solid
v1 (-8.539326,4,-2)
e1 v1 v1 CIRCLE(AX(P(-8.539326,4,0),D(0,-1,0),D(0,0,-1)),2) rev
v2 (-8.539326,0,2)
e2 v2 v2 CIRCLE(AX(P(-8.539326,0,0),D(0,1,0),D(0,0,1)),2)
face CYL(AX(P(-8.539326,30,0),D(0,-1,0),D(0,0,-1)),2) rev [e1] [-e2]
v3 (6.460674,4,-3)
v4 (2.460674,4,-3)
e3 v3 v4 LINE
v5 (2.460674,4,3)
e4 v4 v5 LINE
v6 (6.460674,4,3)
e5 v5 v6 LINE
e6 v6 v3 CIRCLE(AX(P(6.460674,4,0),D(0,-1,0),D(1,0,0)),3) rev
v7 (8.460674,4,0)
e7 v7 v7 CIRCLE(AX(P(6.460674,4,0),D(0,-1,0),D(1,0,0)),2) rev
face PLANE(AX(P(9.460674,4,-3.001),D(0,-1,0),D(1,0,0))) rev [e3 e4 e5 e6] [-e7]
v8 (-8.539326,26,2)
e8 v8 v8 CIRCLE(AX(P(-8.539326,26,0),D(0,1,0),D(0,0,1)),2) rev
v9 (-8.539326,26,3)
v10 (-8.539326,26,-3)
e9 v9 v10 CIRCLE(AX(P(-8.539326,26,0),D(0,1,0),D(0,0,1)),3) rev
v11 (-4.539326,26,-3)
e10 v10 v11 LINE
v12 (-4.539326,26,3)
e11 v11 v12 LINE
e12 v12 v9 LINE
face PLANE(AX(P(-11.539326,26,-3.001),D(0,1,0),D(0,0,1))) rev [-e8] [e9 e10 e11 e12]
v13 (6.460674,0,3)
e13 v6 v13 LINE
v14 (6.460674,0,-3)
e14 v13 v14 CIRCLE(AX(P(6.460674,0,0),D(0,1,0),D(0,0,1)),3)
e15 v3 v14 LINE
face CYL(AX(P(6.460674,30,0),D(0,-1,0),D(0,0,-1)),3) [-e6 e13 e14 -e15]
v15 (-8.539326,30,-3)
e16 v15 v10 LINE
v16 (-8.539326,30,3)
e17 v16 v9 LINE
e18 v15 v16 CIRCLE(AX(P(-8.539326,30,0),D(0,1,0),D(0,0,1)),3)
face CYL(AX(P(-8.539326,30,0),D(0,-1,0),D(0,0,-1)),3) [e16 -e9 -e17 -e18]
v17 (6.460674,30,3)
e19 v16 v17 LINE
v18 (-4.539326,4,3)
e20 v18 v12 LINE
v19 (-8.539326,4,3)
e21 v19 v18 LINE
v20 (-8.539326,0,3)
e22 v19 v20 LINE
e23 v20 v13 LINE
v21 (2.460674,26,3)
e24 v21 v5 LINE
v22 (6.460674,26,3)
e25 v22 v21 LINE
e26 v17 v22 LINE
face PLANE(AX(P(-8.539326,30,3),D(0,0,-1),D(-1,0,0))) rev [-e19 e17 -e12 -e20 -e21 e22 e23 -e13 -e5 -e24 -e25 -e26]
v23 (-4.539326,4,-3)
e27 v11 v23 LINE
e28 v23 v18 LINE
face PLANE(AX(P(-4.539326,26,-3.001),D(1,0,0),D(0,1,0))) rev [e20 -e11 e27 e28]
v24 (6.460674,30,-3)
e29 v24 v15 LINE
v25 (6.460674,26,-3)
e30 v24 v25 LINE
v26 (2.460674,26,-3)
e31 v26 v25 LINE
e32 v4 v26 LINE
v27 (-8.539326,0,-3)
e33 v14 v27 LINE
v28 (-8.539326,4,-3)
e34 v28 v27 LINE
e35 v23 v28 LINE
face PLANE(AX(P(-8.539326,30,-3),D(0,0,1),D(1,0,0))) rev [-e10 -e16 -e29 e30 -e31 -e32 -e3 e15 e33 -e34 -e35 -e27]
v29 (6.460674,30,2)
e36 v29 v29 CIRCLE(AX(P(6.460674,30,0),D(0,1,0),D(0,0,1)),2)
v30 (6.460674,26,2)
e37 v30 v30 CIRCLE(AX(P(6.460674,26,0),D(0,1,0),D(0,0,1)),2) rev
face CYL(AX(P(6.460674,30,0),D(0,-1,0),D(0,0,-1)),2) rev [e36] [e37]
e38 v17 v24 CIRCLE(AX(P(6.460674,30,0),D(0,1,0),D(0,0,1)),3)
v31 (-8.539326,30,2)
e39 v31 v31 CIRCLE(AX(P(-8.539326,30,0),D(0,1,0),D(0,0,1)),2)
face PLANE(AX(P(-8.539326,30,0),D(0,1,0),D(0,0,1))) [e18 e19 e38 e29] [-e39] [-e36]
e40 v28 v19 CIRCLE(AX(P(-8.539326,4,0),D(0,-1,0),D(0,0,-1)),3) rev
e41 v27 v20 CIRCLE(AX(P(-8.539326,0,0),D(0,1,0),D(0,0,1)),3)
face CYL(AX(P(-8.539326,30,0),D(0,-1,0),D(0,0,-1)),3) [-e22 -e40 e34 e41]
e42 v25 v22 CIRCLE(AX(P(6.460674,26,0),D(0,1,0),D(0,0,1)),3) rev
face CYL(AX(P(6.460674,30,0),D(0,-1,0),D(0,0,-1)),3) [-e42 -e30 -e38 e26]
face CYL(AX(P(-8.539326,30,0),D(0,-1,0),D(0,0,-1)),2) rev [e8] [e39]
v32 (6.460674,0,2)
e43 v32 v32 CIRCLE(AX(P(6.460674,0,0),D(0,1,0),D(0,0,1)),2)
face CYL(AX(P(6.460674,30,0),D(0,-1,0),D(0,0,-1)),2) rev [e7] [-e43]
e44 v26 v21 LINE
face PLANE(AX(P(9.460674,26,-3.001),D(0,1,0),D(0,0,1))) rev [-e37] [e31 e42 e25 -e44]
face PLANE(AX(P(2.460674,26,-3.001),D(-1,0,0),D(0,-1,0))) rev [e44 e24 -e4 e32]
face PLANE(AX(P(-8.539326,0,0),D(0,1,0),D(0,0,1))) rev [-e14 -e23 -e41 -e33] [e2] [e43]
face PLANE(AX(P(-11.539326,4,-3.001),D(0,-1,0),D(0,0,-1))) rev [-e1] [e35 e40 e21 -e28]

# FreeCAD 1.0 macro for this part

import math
import FreeCAD as App
import Part
import Sketcher
Q = App.Units.Quantity


def add_polygon(sketch, points):
    """Adds a closed chain of lines whose ends are joined by coincident constraints."""
    first, n = sketch.GeometryCount, len(points)
    for a, b in zip(points, points[1:] + points[:1]):
        sketch.addGeometry(Part.LineSegment(App.Vector(*a, 0), App.Vector(*b, 0)), False)
    for i in range(n):
        sketch.addConstraint(Sketcher.Constraint("Coincident", first + i, 2, first + (i + 1) % n, 1))

doc = App.newDocument("Part")
body = doc.addObject("PartDesign::Body", "Body")

# Sketch on XZ plane
sketch1 = body.newObject("Sketcher::SketchObject", "Sketch")
sketch1.AttachmentSupport = (doc.getObject("XZ_Plane"), [""])
sketch1.MapMode = "FlatFace"
sketch1.addGeometry(Part.LineSegment(App.Vector(6.5, -3, 0), App.Vector(-8.5, -3, 0)), False)
sketch1.addGeometry(Part.ArcOfCircle(Part.Circle(App.Vector(-8.5, 0, 0), App.Vector(0, 0, 1), 3), math.radians(90), math.radians(270)), False)
sketch1.addGeometry(Part.LineSegment(App.Vector(-8.5, 3, 0), App.Vector(6.5, 3, 0)), False)
sketch1.addGeometry(Part.ArcOfCircle(Part.Circle(App.Vector(6.5, 0, 0), App.Vector(0, 0, 1), 3), math.radians(-90), math.radians(90)), False)
sketch1.addGeometry(Part.Circle(App.Vector(6.5, 0, 0), App.Vector(0, 0, 1), 2), False)
sketch1.addGeometry(Part.Circle(App.Vector(-8.5, 0, 0), App.Vector(0, 0, 1), 2), False)
sketch1.addConstraint(Sketcher.Constraint("Tangent", 0, 2, 1, 2))
sketch1.addConstraint(Sketcher.Constraint("Tangent", 1, 1, 2, 1))
sketch1.addConstraint(Sketcher.Constraint("Tangent", 2, 2, 3, 2))
sketch1.addConstraint(Sketcher.Constraint("Tangent", 3, 1, 0, 1))
sketch1.addConstraint(Sketcher.Constraint("Horizontal", 0))
sketch1.addConstraint(Sketcher.Constraint("Horizontal", 2))
sketch1.addConstraint(Sketcher.Constraint("Coincident", 4, 3, 3, 3))
sketch1.addConstraint(Sketcher.Constraint("Coincident", 5, 3, 1, 3))
sketch1.addConstraint(Sketcher.Constraint("Equal", 4, 5))
sketch1.addConstraint(Sketcher.Constraint("PointOnObject", 1, 3, -1))
sketch1.addConstraint(Sketcher.Constraint("Diameter", 4, Q("4 mm")))
sketch1.addConstraint(Sketcher.Constraint("Radius", 1, Q("3 mm")))
sketch1.addConstraint(Sketcher.Constraint("DistanceX", 0, 2, 0, 1, Q("15 mm")))
sketch1.addConstraint(Sketcher.Constraint("DistanceX", 1, 3, -1, 1, Q("8.539326 mm")))
pad1 = body.newObject("PartDesign::Pad", "Pad")
pad1.Profile = sketch1
pad1.Length = 30
pad1.Reversed = True

# Sketch on XY plane
sketch2 = body.newObject("Sketcher::SketchObject", "Sketch001")
sketch2.AttachmentSupport = (doc.getObject("XY_Plane"), [""])
sketch2.MapMode = "FlatFace"
sketch2.AttachmentOffset = App.Placement(App.Vector(0, 0, 3), App.Rotation())
add_polygon(sketch2, [(2, 26), (2, 4), (9, 4), (9, 26)])  # lines 0-3
sketch2.addConstraint(Sketcher.Constraint("Vertical", 0))
sketch2.addConstraint(Sketcher.Constraint("Horizontal", 1))
sketch2.addConstraint(Sketcher.Constraint("Vertical", 2))
sketch2.addConstraint(Sketcher.Constraint("Horizontal", 3))
sketch2.addConstraint(Sketcher.Constraint("DistanceX", 1, 1, 1, 2, Q("7 mm")))
sketch2.addConstraint(Sketcher.Constraint("DistanceY", 0, 2, 0, 1, Q("22 mm")))
sketch2.addConstraint(Sketcher.Constraint("DistanceY", -1, 1, 0, 2, Q("4 mm")))
sketch2.addConstraint(Sketcher.Constraint("DistanceX", -1, 1, 0, 2, Q("2.460674 mm")))
pocket1 = body.newObject("PartDesign::Pocket", "Pocket")
pocket1.Profile = sketch2
pocket1.Type = "UpToFirst"

# Sketch on XY plane
sketch3 = body.newObject("Sketcher::SketchObject", "Sketch002")
sketch3.AttachmentSupport = (doc.getObject("XY_Plane"), [""])
sketch3.MapMode = "FlatFace"
sketch3.AttachmentOffset = App.Placement(App.Vector(0, 0, 3), App.Rotation())
add_polygon(sketch3, [(-12, 26), (-12, 4), (-5, 4), (-5, 26)])  # lines 0-3
sketch3.addConstraint(Sketcher.Constraint("Vertical", 0))
sketch3.addConstraint(Sketcher.Constraint("Horizontal", 1))
sketch3.addConstraint(Sketcher.Constraint("Vertical", 2))
sketch3.addConstraint(Sketcher.Constraint("Horizontal", 3))
sketch3.addConstraint(Sketcher.Constraint("DistanceX", 1, 1, 1, 2, Q("7 mm")))
sketch3.addConstraint(Sketcher.Constraint("DistanceY", 0, 2, 0, 1, Q("22 mm")))
sketch3.addConstraint(Sketcher.Constraint("DistanceY", -1, 1, 0, 2, Q("4 mm")))
sketch3.addConstraint(Sketcher.Constraint("DistanceX", 0, 2, -1, 1, Q("11.539326 mm")))
pocket2 = body.newObject("PartDesign::Pocket", "Pocket001")
pocket2.Profile = sketch3
pocket2.Type = "UpToFirst"

doc.recompute()
